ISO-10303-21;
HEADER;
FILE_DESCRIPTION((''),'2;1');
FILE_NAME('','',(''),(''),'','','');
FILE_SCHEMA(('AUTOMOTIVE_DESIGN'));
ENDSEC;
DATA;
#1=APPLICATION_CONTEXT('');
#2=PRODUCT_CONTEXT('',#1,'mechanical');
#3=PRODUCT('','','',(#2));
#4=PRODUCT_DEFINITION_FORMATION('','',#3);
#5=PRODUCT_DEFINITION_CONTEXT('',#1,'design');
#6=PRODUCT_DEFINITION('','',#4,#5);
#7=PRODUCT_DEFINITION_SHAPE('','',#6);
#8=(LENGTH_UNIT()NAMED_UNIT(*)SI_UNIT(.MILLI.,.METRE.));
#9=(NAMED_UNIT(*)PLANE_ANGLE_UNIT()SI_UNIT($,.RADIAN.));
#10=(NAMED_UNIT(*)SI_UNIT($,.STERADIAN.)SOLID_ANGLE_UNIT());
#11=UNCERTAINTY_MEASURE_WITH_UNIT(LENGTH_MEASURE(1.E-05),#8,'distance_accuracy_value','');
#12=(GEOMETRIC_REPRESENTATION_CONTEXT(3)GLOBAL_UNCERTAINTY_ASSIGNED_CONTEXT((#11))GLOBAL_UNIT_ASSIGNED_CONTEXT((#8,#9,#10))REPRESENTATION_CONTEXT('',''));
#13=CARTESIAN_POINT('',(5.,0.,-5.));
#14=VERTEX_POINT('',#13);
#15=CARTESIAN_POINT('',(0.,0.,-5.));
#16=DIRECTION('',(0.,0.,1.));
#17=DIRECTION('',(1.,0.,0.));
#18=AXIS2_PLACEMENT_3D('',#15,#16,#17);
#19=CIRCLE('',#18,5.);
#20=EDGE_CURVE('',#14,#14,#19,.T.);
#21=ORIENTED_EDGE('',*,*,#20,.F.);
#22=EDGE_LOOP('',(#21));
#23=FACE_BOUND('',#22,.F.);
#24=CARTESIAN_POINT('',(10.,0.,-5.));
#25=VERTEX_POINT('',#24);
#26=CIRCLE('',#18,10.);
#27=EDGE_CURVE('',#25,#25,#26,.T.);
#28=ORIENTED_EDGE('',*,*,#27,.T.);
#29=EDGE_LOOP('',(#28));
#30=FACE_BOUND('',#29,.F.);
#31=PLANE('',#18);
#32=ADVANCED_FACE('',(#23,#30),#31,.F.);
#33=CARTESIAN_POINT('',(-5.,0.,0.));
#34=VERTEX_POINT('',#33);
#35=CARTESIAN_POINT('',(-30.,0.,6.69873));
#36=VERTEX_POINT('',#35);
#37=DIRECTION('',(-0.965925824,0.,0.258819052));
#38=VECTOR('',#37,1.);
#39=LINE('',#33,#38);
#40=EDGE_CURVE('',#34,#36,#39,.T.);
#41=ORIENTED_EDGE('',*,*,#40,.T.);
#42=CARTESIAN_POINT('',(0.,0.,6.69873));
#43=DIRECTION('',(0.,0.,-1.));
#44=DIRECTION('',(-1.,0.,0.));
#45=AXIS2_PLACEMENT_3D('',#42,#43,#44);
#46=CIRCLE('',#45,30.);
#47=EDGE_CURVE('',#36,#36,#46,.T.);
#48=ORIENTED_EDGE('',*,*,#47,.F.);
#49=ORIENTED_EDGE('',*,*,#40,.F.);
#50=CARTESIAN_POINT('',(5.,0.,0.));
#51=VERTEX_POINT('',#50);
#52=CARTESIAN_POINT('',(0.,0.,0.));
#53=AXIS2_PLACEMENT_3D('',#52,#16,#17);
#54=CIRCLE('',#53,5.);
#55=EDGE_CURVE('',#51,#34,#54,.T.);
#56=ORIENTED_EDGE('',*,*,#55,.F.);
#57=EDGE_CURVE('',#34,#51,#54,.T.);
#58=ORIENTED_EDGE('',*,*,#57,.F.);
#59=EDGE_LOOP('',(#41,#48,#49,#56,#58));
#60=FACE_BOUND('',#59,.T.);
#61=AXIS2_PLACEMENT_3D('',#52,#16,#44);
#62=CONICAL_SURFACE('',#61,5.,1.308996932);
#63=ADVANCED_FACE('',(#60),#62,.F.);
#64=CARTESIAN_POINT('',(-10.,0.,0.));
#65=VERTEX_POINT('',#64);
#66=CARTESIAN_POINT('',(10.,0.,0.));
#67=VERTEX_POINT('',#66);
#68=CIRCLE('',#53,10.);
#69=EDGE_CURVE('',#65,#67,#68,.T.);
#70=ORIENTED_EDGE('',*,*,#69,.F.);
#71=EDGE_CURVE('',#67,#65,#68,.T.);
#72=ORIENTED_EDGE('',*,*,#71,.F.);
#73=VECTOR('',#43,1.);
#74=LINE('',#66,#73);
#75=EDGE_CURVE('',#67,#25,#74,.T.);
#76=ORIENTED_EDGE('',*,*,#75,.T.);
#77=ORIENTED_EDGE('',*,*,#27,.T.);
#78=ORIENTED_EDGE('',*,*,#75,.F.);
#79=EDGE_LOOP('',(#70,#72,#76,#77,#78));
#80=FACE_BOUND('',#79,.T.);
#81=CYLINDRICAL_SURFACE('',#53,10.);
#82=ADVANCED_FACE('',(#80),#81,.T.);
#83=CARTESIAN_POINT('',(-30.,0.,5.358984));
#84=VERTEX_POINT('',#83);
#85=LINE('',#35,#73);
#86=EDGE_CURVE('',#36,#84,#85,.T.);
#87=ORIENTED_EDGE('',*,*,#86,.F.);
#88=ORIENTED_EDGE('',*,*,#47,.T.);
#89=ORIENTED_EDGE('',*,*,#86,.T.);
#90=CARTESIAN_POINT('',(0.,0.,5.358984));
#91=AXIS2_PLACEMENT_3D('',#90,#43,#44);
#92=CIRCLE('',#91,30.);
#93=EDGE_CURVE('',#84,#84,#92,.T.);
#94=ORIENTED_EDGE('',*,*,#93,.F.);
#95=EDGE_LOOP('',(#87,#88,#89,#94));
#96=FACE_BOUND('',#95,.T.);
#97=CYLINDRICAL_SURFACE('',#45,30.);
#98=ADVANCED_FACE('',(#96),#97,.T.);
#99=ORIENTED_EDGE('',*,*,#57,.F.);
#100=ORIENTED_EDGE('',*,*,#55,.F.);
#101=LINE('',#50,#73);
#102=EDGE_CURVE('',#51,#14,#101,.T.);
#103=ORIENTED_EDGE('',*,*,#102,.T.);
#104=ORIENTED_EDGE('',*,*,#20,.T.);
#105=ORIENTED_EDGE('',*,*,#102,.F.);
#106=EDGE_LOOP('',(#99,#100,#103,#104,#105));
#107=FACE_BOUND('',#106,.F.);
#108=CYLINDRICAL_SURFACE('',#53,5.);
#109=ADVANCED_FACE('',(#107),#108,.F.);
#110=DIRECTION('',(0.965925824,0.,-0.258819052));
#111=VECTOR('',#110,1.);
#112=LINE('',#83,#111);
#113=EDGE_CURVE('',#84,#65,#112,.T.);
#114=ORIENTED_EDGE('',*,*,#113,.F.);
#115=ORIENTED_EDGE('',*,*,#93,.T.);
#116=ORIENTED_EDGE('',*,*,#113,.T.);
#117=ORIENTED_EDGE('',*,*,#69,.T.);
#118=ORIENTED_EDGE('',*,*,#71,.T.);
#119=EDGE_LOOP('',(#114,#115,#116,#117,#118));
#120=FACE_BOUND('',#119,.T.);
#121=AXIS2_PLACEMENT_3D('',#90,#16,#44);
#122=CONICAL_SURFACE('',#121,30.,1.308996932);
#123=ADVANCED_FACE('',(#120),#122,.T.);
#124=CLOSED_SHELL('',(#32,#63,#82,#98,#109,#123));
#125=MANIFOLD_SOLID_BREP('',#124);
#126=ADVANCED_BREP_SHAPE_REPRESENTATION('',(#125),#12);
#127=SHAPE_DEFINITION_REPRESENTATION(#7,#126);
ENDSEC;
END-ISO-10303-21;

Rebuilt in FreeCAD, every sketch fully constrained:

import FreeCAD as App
import Part
import Sketcher
Q = App.Units.Quantity


def add_polygon(sketch, points):
    """Adds a closed chain of lines whose ends are joined by coincident constraints."""
    first, n = sketch.GeometryCount, len(points)
    for a, b in zip(points, points[1:] + points[:1]):
        sketch.addGeometry(Part.LineSegment(App.Vector(*a, 0), App.Vector(*b, 0)), False)
    for i in range(n):
        sketch.addConstraint(Sketcher.Constraint("Coincident", first + i, 2, first + (i + 1) % n, 1))

doc = App.newDocument("Part")
params = doc.addObject("Spreadsheet::Sheet", "Params")
for row, (alias, value) in enumerate([
    ("sketch1_diameter", "20 mm"),
    ("sketch1_diameter2", "10 mm"),
    ("pad1_length", "5 mm"),
    ("sketch2_width", "5 mm"),
    ("revolution_angle", "360 deg"),
], start=1):
    params.set(f"A{row}", alias)
    params.set(f"B{row}", "=" + value)
    params.setAlias(f"B{row}", alias)

body = doc.addObject("PartDesign::Body", "Body")

sketch1 = doc.addObject("Sketcher::SketchObject", "Sketch")
body.addObject(sketch1)
sketch1.AttachmentSupport = (doc.XY_Plane, [""])
sketch1.MapMode = "FlatFace"
sketch1.addGeometry([
    Part.Circle(App.Vector(0, 0, 0), App.Vector(0, 0, 1), 10),
    Part.Circle(App.Vector(0, 0, 0), App.Vector(0, 0, 1), 5),
], False)
sketch1.addConstraint([
    Sketcher.Constraint("Coincident", 0, 3, -1, 1),
    Sketcher.Constraint("Coincident", 1, 3, -1, 1),
    Sketcher.Constraint("Diameter", 0, Q("20 mm")),
    Sketcher.Constraint("Diameter", 1, Q("10 mm")),
])
sketch1.setExpression("Constraints[2]", "Params.sketch1_diameter")
sketch1.setExpression("Constraints[3]", "Params.sketch1_diameter2")
pad1 = doc.addObject("PartDesign::Pad", "Pad")
body.addObject(pad1)
pad1.Profile = sketch1
pad1.setExpression("Length", "Params.pad1_length")
pad1.Reversed = True

sketch2 = doc.addObject("Sketcher::SketchObject", "Sketch001")
body.addObject(sketch2)
sketch2.AttachmentSupport = (doc.XZ_Plane, [""])
sketch2.MapMode = "FlatFace"
add_polygon(sketch2, [(-30, 5.358984), (-10, 0), (-5, 0), (-30, 6.69873)])
sketch2.addConstraint([
    Sketcher.Constraint("Horizontal", 1),
    Sketcher.Constraint("Vertical", 3),
    Sketcher.Constraint("PointOnObject", 0, 2, -1),
    Sketcher.Constraint("Parallel", 0, 2),
    Sketcher.Constraint("DistanceX", 1, 1, 1, 2, Q("5 mm")),
    Sketcher.Constraint("Angle", 0, Q("-15 deg")),
    Sketcher.Constraint("DistanceX", 0, 2, -1, 1, Q("10 mm")),
    Sketcher.Constraint("DistanceX", 2, 2, -1, 1, Q("30 mm")),
])
sketch2.setExpression("Constraints[8]", "Params.sketch2_width")
revolution = doc.addObject("PartDesign::Revolution", "Revolution")
body.addObject(revolution)
revolution.Profile = sketch2
revolution.ReferenceAxis = (sketch2, ["V_Axis"])
revolution.setExpression("Angle", "Params.revolution_angle")

doc.recompute()
